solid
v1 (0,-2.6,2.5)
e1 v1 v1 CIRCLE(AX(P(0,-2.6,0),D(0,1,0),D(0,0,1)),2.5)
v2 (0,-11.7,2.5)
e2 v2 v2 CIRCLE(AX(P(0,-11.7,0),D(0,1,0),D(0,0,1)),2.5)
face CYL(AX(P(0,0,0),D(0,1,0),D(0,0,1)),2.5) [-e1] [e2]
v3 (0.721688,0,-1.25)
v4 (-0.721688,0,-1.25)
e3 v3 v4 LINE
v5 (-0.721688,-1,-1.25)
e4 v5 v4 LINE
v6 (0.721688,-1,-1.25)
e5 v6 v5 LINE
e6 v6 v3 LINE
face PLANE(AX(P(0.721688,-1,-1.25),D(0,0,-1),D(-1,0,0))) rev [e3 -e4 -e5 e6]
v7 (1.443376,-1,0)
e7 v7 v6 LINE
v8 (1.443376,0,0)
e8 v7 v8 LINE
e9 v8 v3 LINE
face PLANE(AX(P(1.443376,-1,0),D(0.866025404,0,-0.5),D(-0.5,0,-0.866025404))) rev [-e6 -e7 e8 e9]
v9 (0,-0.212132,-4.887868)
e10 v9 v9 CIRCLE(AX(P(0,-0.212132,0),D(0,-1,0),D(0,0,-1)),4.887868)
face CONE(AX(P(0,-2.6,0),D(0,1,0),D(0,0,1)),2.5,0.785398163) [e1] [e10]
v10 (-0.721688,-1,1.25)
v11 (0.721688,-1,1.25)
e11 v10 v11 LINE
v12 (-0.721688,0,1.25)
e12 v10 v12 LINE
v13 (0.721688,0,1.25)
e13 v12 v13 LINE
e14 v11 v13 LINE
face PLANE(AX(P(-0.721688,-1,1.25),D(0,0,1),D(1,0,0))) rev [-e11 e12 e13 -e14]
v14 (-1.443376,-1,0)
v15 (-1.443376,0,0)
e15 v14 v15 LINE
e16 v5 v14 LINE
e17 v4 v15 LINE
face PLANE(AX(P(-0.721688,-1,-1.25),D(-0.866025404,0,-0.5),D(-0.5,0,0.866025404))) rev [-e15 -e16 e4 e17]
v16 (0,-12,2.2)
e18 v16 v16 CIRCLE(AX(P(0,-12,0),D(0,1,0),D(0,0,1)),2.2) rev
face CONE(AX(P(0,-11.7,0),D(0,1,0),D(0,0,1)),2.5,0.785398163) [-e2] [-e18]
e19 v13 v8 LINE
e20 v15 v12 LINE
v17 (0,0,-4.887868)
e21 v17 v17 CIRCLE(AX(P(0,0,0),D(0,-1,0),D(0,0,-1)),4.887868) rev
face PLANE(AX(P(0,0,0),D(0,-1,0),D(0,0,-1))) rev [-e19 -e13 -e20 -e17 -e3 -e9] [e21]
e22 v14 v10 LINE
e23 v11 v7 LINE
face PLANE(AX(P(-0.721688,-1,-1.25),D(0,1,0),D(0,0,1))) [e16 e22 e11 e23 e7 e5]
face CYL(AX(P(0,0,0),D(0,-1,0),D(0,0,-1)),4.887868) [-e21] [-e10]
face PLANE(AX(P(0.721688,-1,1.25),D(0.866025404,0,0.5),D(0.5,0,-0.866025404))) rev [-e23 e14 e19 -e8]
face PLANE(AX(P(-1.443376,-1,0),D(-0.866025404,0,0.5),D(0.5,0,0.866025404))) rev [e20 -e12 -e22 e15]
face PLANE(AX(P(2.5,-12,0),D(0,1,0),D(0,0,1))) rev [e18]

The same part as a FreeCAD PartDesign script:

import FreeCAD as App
import Part
import Sketcher

V = App.Vector
Q = App.Units.Quantity


def edges_at(feature, points):
    """Names of the edges that pass closest to the given points."""
    edges = feature.Shape.Edges
    near = lambda p: min(range(len(edges)), key=lambda i: edges[i].distToShape(Part.Vertex(*p))[0])
    return sorted({f"Edge{near(p) + 1}" for p in points})


def add_polygon(sketch, points):
    """Adds a closed chain of lines whose ends are joined by coincident constraints."""
    first, n = sketch.GeometryCount, len(points)
    for a, b in zip(points, points[1:] + points[:1]):
        sketch.addGeometry(Part.LineSegment(App.Vector(*a, 0), App.Vector(*b, 0)), False)
    for i in range(n):
        sketch.addConstraint(Sketcher.Constraint("Coincident", first + i, 2, first + (i + 1) % n, 1))

doc = App.newDocument("Part")
body = doc.addObject("PartDesign::Body", "Body")

# Sketch on XY plane
sketch1 = body.newObject("Sketcher::SketchObject", "Sketch")
sketch1.AttachmentSupport = (doc.getObject("XY_Plane"), [""])
sketch1.MapMode = "FlatFace"
add_polygon(sketch1, [(5.1, 0), (0, 0), (0, -12), (2.5, -12), (2.5, -2.6)])  # lines 0-4
sketch1.addConstraint([
    Sketcher.Constraint("Horizontal", 0),
    Sketcher.Constraint("Vertical", 1),
    Sketcher.Constraint("Horizontal", 2),
    Sketcher.Constraint("Vertical", 3),
    Sketcher.Constraint("Coincident", 0, 2, -1, 1),
    Sketcher.Constraint("DistanceY", 1, 2, 1, 1, 12.0),
    Sketcher.Constraint("Angle", 4, Q("45 deg")),
    Sketcher.Constraint("DistanceX", 0, 2, 0, 1, 5.1),
    Sketcher.Constraint("DistanceX", 2, 1, 2, 2, 2.5),
])
revolution = body.newObject("PartDesign::Revolution", "Revolution")
revolution.Profile = sketch1
revolution.ReferenceAxis = (sketch1, ["V_Axis"])
revolution.Angle = 360
doc.recompute()

chamfer = body.newObject("PartDesign::Chamfer", "Chamfer")
chamfer.Base = (revolution, edges_at(revolution, [(0, 0, -5.1)]))
chamfer.ChamferType = "Two distances"
chamfer.Size = 0.3
chamfer.Size2 = 0.212132
chamfer.FlipDirection = True
doc.recompute()

chamfer2 = body.newObject("PartDesign::Chamfer", "Chamfer001")
chamfer2.Base = (chamfer, edges_at(chamfer, [(0, -12, -2.5)]))
chamfer2.Size = 0.3

# Sketch on XZ plane
sketch2 = body.newObject("Sketcher::SketchObject", "Sketch001")
sketch2.AttachmentSupport = (doc.getObject("XZ_Plane"), [""])
sketch2.MapMode = "FlatFace"
add_polygon(sketch2, [(-0.7, -1.2), (-1.4, 0), (-0.7, 1.2), (0.7, 1.2), (1.4, 0), (0.7, -1.2)])  # lines 0-5
sketch2.addConstraint([
    Sketcher.Constraint("Horizontal", 2),
    Sketcher.Constraint("Horizontal", 5),
    Sketcher.Constraint("Symmetric", 0, 2, 3, 2, -1, 1),
    Sketcher.Constraint("Symmetric", 1, 2, 4, 2, -1, 1),
    Sketcher.Constraint("PointOnObject", 0, 2, -1),
    Sketcher.Constraint("Parallel", 0, 3),
    Sketcher.Constraint("Vertical", 2, 2, 4, 2),
    Sketcher.Constraint("Angle", 0, Q("120 deg")),
    Sketcher.Constraint("DistanceY", 4, 2, 2, 2, 2.5),
    Sketcher.Constraint("DistanceX", 2, 1, 2, 2, 1.443376),
])
pocket1 = body.newObject("PartDesign::Pocket", "Pocket")
pocket1.Profile = sketch2
pocket1.Length = 1
pocket1.Reversed = True

doc.recompute()
